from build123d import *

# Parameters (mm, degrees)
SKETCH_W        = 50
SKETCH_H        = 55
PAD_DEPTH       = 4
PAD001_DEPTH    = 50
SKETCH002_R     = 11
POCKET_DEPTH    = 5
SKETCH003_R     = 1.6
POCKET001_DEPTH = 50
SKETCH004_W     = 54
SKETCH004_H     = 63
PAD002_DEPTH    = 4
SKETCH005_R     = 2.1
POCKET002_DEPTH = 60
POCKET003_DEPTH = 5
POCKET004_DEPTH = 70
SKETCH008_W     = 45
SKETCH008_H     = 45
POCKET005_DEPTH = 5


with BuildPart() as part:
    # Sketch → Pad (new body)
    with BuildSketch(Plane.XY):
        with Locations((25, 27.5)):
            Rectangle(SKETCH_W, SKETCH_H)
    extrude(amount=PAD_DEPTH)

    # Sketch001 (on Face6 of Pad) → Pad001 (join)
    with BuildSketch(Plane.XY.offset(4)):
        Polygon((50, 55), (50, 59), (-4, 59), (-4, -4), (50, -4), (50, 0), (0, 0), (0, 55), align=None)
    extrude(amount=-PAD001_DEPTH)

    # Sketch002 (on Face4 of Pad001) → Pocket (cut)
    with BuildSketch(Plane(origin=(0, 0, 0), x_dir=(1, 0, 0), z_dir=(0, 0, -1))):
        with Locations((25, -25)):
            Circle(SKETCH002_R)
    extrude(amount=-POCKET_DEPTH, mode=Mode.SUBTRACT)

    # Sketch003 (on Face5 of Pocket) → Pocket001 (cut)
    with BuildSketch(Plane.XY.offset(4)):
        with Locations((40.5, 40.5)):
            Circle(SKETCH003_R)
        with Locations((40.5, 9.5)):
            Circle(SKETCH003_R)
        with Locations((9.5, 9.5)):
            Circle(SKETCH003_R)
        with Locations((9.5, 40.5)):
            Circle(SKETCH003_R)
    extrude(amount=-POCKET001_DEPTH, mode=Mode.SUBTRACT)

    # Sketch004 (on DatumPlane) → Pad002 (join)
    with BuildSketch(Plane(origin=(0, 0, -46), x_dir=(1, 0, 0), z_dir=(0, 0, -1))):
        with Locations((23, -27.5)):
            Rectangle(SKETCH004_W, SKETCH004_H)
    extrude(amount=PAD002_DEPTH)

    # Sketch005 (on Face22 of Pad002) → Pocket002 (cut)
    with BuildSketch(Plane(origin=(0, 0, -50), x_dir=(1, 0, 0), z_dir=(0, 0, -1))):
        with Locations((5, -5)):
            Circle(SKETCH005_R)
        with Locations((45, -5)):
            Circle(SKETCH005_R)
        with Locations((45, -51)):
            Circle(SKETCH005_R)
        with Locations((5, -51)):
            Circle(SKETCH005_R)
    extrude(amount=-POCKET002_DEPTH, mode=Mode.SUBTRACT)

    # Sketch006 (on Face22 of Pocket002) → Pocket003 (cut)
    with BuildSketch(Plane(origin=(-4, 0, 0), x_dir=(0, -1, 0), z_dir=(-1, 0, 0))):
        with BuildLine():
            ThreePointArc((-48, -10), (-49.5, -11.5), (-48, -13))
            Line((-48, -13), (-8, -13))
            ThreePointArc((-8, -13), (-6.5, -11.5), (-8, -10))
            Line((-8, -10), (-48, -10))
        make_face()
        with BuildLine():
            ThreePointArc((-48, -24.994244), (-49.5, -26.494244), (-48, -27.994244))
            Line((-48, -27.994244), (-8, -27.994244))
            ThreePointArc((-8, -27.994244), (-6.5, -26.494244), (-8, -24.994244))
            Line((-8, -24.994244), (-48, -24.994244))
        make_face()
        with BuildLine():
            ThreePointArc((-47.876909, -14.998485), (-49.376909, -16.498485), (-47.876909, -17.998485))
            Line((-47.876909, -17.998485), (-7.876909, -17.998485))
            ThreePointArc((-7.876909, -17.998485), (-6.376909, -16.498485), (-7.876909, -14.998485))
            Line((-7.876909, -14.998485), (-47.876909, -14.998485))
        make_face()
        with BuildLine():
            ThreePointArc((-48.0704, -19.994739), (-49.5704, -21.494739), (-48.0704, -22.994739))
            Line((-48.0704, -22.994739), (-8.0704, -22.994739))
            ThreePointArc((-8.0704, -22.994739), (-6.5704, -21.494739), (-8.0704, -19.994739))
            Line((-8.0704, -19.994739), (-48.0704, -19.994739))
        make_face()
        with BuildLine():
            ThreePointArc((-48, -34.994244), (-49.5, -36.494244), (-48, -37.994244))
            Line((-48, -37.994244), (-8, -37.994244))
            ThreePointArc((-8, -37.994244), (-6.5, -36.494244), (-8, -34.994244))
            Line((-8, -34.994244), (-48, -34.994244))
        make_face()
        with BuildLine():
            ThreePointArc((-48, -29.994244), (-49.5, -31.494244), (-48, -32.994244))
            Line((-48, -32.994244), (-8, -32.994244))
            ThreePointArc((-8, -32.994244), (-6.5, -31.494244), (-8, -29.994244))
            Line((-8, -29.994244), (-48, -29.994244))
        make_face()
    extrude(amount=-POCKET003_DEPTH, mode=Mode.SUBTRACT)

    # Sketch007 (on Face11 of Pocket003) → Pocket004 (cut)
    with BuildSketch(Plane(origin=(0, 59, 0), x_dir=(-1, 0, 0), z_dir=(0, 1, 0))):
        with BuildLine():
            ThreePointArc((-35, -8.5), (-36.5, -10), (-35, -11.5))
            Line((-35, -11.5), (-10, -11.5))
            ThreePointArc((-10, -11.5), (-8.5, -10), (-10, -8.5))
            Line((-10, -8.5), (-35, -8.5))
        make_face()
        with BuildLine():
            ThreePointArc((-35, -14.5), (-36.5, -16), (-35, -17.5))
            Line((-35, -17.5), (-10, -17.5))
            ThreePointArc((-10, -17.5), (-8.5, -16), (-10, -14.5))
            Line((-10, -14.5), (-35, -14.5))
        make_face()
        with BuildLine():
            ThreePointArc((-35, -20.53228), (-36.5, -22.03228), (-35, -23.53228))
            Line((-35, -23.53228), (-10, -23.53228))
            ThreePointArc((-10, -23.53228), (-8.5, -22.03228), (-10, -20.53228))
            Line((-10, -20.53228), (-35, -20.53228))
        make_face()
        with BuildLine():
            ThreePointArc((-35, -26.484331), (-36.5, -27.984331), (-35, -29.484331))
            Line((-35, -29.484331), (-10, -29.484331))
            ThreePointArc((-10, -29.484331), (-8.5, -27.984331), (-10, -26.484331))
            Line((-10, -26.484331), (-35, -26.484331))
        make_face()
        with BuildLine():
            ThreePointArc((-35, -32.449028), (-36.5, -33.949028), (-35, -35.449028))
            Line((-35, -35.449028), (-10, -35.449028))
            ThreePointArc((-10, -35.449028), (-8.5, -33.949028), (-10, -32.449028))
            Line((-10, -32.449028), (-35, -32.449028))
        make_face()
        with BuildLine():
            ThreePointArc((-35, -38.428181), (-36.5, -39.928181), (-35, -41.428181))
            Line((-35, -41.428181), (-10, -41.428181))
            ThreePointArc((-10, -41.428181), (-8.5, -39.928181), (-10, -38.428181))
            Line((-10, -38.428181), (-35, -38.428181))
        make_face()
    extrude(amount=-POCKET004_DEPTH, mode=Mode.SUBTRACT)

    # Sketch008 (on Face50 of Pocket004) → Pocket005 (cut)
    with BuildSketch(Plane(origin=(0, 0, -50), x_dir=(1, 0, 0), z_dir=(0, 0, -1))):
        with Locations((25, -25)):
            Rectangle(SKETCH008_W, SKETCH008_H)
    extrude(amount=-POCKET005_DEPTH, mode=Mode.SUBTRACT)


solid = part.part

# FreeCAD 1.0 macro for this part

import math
import FreeCAD as App
import Part
import Sketcher
Q = App.Units.Quantity


def add_polygon(sketch, points):
    """Adds a closed chain of lines whose ends are joined by coincident constraints."""
    first, n = sketch.GeometryCount, len(points)
    for a, b in zip(points, points[1:] + points[:1]):
        sketch.addGeometry(Part.LineSegment(App.Vector(*a, 0), App.Vector(*b, 0)), False)
    for i in range(n):
        sketch.addConstraint(Sketcher.Constraint("Coincident", first + i, 2, first + (i + 1) % n, 1))

doc = App.newDocument("Part")
body = doc.addObject("PartDesign::Body", "Body")

# Sketch on XY plane
sketch1 = body.newObject("Sketcher::SketchObject", "Sketch")
sketch1.AttachmentSupport = (doc.getObject("XY_Plane"), [""])
sketch1.MapMode = "FlatFace"
add_polygon(sketch1, [(0, 55), (0, 0), (50, 0), (50, 55)])  # lines 0-3
sketch1.addConstraint([
    Sketcher.Constraint("Vertical", 0),
    Sketcher.Constraint("Horizontal", 1),
    Sketcher.Constraint("Vertical", 2),
    Sketcher.Constraint("Horizontal", 3),
    Sketcher.Constraint("Coincident", 0, 2, -1, 1),
    Sketcher.Constraint("DistanceX", 1, 1, 1, 2, Q("50 mm")),
    Sketcher.Constraint("DistanceY", 0, 2, 0, 1, Q("55 mm")),
])
pad1 = body.newObject("PartDesign::Pad", "Pad")
pad1.Profile = sketch1
pad1.Length = 4

# Sketch on XY plane
sketch2 = body.newObject("Sketcher::SketchObject", "Sketch001")
sketch2.AttachmentSupport = (doc.getObject("XY_Plane"), [""])
sketch2.MapMode = "FlatFace"
sketch2.AttachmentOffset = App.Placement(App.Vector(0, 0, 4), App.Rotation())
add_polygon(sketch2, [(50, 55), (50, 59), (-4, 59), (-4, -4), (50, -4), (50, 0), (0, 0), (0, 55)])  # lines 0-7
sketch2.addConstraint([
    Sketcher.Constraint("Vertical", 0),
    Sketcher.Constraint("Horizontal", 1),
    Sketcher.Constraint("Vertical", 2),
    Sketcher.Constraint("Horizontal", 3),
    Sketcher.Constraint("Vertical", 4),
    Sketcher.Constraint("Horizontal", 5),
    Sketcher.Constraint("Vertical", 6),
    Sketcher.Constraint("Horizontal", 7),
    Sketcher.Constraint("Coincident", 5, 2, -1, 1),
    Sketcher.Constraint("Vertical", 0, 2, 3, 2),
    Sketcher.Constraint("Equal", 0, 4),
    Sketcher.Constraint("DistanceX", 1, 2, 1, 1, Q("54 mm")),
    Sketcher.Constraint("DistanceX", 5, 2, 5, 1, Q("50 mm")),
    Sketcher.Constraint("DistanceY", 0, 1, 0, 2, Q("4 mm")),
    Sketcher.Constraint("DistanceY", 2, 2, 2, 1, Q("63 mm")),
])
pad2 = body.newObject("PartDesign::Pad", "Pad001")
pad2.Profile = sketch2
pad2.Length = 50
pad2.Reversed = True

# Sketch on XY plane
sketch3 = body.newObject("Sketcher::SketchObject", "Sketch002")
sketch3.AttachmentSupport = (doc.getObject("XY_Plane"), [""])
sketch3.MapMode = "FlatFace"
sketch3.addGeometry(Part.Circle(App.Vector(25, 25, 0), App.Vector(0, 0, 1), 11), False)
sketch3.addConstraint([
    Sketcher.Constraint("Diameter", 0, Q("22 mm")),
    Sketcher.Constraint("DistanceX", -1, 1, 0, 3, Q("25 mm")),
    Sketcher.Constraint("DistanceY", -1, 1, 0, 3, Q("25 mm")),
])
pocket1 = body.newObject("PartDesign::Pocket", "Pocket")
pocket1.Profile = sketch3
pocket1.Length = 5
pocket1.Reversed = True

# Sketch on XY plane
sketch4 = body.newObject("Sketcher::SketchObject", "Sketch003")
sketch4.AttachmentSupport = (doc.getObject("XY_Plane"), [""])
sketch4.MapMode = "FlatFace"
sketch4.AttachmentOffset = App.Placement(App.Vector(0, 0, 4), App.Rotation())
sketch4.addGeometry([
    Part.Circle(App.Vector(40.5, 40.5, 0), App.Vector(0, 0, 1), 1.6),
    Part.Circle(App.Vector(40.5, 9.5, 0), App.Vector(0, 0, 1), 1.6),
    Part.Circle(App.Vector(9.5, 9.5, 0), App.Vector(0, 0, 1), 1.6),
    Part.Circle(App.Vector(9.5, 40.5, 0), App.Vector(0, 0, 1), 1.6),
], False)
sketch4.addConstraint([
    Sketcher.Constraint("Equal", 0, 1),
    Sketcher.Constraint("Equal", 1, 2),
    Sketcher.Constraint("Equal", 2, 3),
    Sketcher.Constraint("Horizontal", 1, 3, 2, 3),
    Sketcher.Constraint("Horizontal", 0, 3, 3, 3),
    Sketcher.Constraint("Vertical", 0, 3, 1, 3),
    Sketcher.Constraint("Vertical", 2, 3, 3, 3),
    Sketcher.Constraint("Diameter", 0, Q("3.2 mm")),
    Sketcher.Constraint("DistanceY", 1, 3, 0, 3, Q("31 mm")),
    Sketcher.Constraint("DistanceX", 2, 3, 1, 3, Q("31 mm")),
    Sketcher.Constraint("DistanceX", -1, 1, 0, 3, Q("40.5 mm")),
    Sketcher.Constraint("DistanceY", -1, 1, 0, 3, Q("40.5 mm")),
])
pocket2 = body.newObject("PartDesign::Pocket", "Pocket001")
pocket2.Profile = sketch4
pocket2.Length = 50

# Sketch on XY plane
sketch5 = body.newObject("Sketcher::SketchObject", "Sketch004")
sketch5.AttachmentSupport = (doc.getObject("XY_Plane"), [""])
sketch5.MapMode = "FlatFace"
sketch5.AttachmentOffset = App.Placement(App.Vector(0, 0, -46), App.Rotation())
add_polygon(sketch5, [(-4, -4), (-4, 59), (50, 59), (50, -4)])  # lines 0-3
sketch5.addConstraint([
    Sketcher.Constraint("Vertical", 0),
    Sketcher.Constraint("Horizontal", 1),
    Sketcher.Constraint("Vertical", 2),
    Sketcher.Constraint("Horizontal", 3),
    Sketcher.Constraint("DistanceX", 1, 1, 1, 2, Q("54 mm")),
    Sketcher.Constraint("DistanceY", 0, 1, 0, 2, Q("63 mm")),
    Sketcher.Constraint("DistanceX", 0, 2, -1, 1, Q("4 mm")),
    Sketcher.Constraint("DistanceY", -1, 1, 0, 2, Q("59 mm")),
])
pad3 = body.newObject("PartDesign::Pad", "Pad002")
pad3.Profile = sketch5
pad3.Length = 4
pad3.Reversed = True

# Sketch on XY plane
sketch6 = body.newObject("Sketcher::SketchObject", "Sketch005")
sketch6.AttachmentSupport = (doc.getObject("XY_Plane"), [""])
sketch6.MapMode = "FlatFace"
sketch6.AttachmentOffset = App.Placement(App.Vector(0, 0, -50), App.Rotation())
sketch6.addGeometry([
    Part.Circle(App.Vector(5, 5, 0), App.Vector(0, 0, 1), 2.1),
    Part.Circle(App.Vector(45, 5, 0), App.Vector(0, 0, 1), 2.1),
    Part.Circle(App.Vector(45, 51, 0), App.Vector(0, 0, 1), 2.1),
    Part.Circle(App.Vector(5, 51, 0), App.Vector(0, 0, 1), 2.1),
], False)
sketch6.addConstraint([
    Sketcher.Constraint("Equal", 0, 1),
    Sketcher.Constraint("Equal", 1, 2),
    Sketcher.Constraint("Equal", 2, 3),
    Sketcher.Constraint("Horizontal", 0, 3, 1, 3),
    Sketcher.Constraint("Horizontal", 2, 3, 3, 3),
    Sketcher.Constraint("Vertical", 1, 3, 2, 3),
    Sketcher.Constraint("Vertical", 0, 3, 3, 3),
    Sketcher.Constraint("Diameter", 0, Q("4.2 mm")),
    Sketcher.Constraint("DistanceX", -1, 1, 0, 3, Q("5 mm")),
    Sketcher.Constraint("DistanceY", -1, 1, 0, 3, Q("5 mm")),
    Sketcher.Constraint("DistanceX", -1, 1, 1, 3, Q("45 mm")),
    Sketcher.Constraint("DistanceY", -1, 1, 2, 3, Q("51 mm")),
])
pocket3 = body.newObject("PartDesign::Pocket", "Pocket002")
pocket3.Profile = sketch6
pocket3.Length = 60
pocket3.Reversed = True

# Sketch on YZ plane
sketch7 = body.newObject("Sketcher::SketchObject", "Sketch006")
sketch7.AttachmentSupport = (doc.getObject("YZ_Plane"), [""])
sketch7.MapMode = "FlatFace"
sketch7.AttachmentOffset = App.Placement(App.Vector(0, 0, -4), App.Rotation())
sketch7.addGeometry([
    Part.ArcOfCircle(Part.Circle(App.Vector(48, -11.5, 0), App.Vector(0, 0, 1), 1.5), math.radians(-90), math.radians(90)),  # 0
    Part.LineSegment(App.Vector(48, -13, 0), App.Vector(8, -13, 0)),  # 1
    Part.ArcOfCircle(Part.Circle(App.Vector(8, -11.5, 0), App.Vector(0, 0, 1), 1.5), math.radians(90), math.radians(270)),  # 2
    Part.LineSegment(App.Vector(8, -10, 0), App.Vector(48, -10, 0)),  # 3
    Part.ArcOfCircle(Part.Circle(App.Vector(48, -26.5, 0), App.Vector(0, 0, 1), 1.5), math.radians(-90), math.radians(90)),  # 4
    Part.LineSegment(App.Vector(48, -28, 0), App.Vector(8, -28, 0)),  # 5
    Part.ArcOfCircle(Part.Circle(App.Vector(8, -26.5, 0), App.Vector(0, 0, 1), 1.5), math.radians(90), math.radians(270)),  # 6
    Part.LineSegment(App.Vector(8, -25, 0), App.Vector(48, -25, 0)),  # 7
    Part.ArcOfCircle(Part.Circle(App.Vector(47.9, -16.5, 0), App.Vector(0, 0, 1), 1.5), math.radians(-90), math.radians(90)),  # 8
    Part.LineSegment(App.Vector(47.9, -18, 0), App.Vector(7.9, -18, 0)),  # 9
    Part.ArcOfCircle(Part.Circle(App.Vector(7.9, -16.5, 0), App.Vector(0, 0, 1), 1.5), math.radians(90), math.radians(270)),  # 10
    Part.LineSegment(App.Vector(7.9, -15, 0), App.Vector(47.9, -15, 0)),  # 11
    Part.ArcOfCircle(Part.Circle(App.Vector(48.1, -21.5, 0), App.Vector(0, 0, 1), 1.5), math.radians(-90), math.radians(90)),  # 12
    Part.LineSegment(App.Vector(48.1, -23, 0), App.Vector(8.1, -23, 0)),  # 13
    Part.ArcOfCircle(Part.Circle(App.Vector(8.1, -21.5, 0), App.Vector(0, 0, 1), 1.5), math.radians(90), math.radians(270)),  # 14
    Part.LineSegment(App.Vector(8.1, -20, 0), App.Vector(48.1, -20, 0)),  # 15
    Part.ArcOfCircle(Part.Circle(App.Vector(48, -36.5, 0), App.Vector(0, 0, 1), 1.5), math.radians(-90), math.radians(90)),  # 16
    Part.LineSegment(App.Vector(48, -38, 0), App.Vector(8, -38, 0)),  # 17
    Part.ArcOfCircle(Part.Circle(App.Vector(8, -36.5, 0), App.Vector(0, 0, 1), 1.5), math.radians(90), math.radians(270)),  # 18
    Part.LineSegment(App.Vector(8, -35, 0), App.Vector(48, -35, 0)),  # 19
    Part.ArcOfCircle(Part.Circle(App.Vector(48, -31.5, 0), App.Vector(0, 0, 1), 1.5), math.radians(-90), math.radians(90)),  # 20
    Part.LineSegment(App.Vector(48, -33, 0), App.Vector(8, -33, 0)),  # 21
    Part.ArcOfCircle(Part.Circle(App.Vector(8, -31.5, 0), App.Vector(0, 0, 1), 1.5), math.radians(90), math.radians(270)),  # 22
    Part.LineSegment(App.Vector(8, -30, 0), App.Vector(48, -30, 0)),  # 23
], False)
sketch7.addConstraint([
    Sketcher.Constraint("Tangent", 0, 1, 1, 1),
    Sketcher.Constraint("Tangent", 1, 2, 2, 2),
    Sketcher.Constraint("Tangent", 2, 1, 3, 1),
    Sketcher.Constraint("Tangent", 3, 2, 0, 2),
    Sketcher.Constraint("Tangent", 4, 1, 5, 1),
    Sketcher.Constraint("Tangent", 5, 2, 6, 2),
    Sketcher.Constraint("Tangent", 6, 1, 7, 1),
    Sketcher.Constraint("Tangent", 7, 2, 4, 2),
    Sketcher.Constraint("Tangent", 8, 1, 9, 1),
    Sketcher.Constraint("Tangent", 9, 2, 10, 2),
    Sketcher.Constraint("Tangent", 10, 1, 11, 1),
    Sketcher.Constraint("Tangent", 11, 2, 8, 2),
    Sketcher.Constraint("Tangent", 12, 1, 13, 1),
    Sketcher.Constraint("Tangent", 13, 2, 14, 2),
    Sketcher.Constraint("Tangent", 14, 1, 15, 1),
    Sketcher.Constraint("Tangent", 15, 2, 12, 2),
    Sketcher.Constraint("Tangent", 16, 1, 17, 1),
    Sketcher.Constraint("Tangent", 17, 2, 18, 2),
    Sketcher.Constraint("Tangent", 18, 1, 19, 1),
    Sketcher.Constraint("Tangent", 19, 2, 16, 2),
    Sketcher.Constraint("Tangent", 20, 1, 21, 1),
    Sketcher.Constraint("Tangent", 21, 2, 22, 2),
    Sketcher.Constraint("Tangent", 22, 1, 23, 1),
    Sketcher.Constraint("Tangent", 23, 2, 20, 2),
    Sketcher.Constraint("Horizontal", 1),
    Sketcher.Constraint("Horizontal", 3),
    Sketcher.Constraint("Horizontal", 5),
    Sketcher.Constraint("Horizontal", 7),
    Sketcher.Constraint("Horizontal", 9),
    Sketcher.Constraint("Horizontal", 11),
    Sketcher.Constraint("Horizontal", 13),
    Sketcher.Constraint("Horizontal", 15),
    Sketcher.Constraint("Horizontal", 17),
    Sketcher.Constraint("Horizontal", 19),
    Sketcher.Constraint("Horizontal", 21),
    Sketcher.Constraint("Horizontal", 23),
    Sketcher.Constraint("Equal", 2, 4),
    Sketcher.Constraint("Equal", 6, 8),
    Sketcher.Constraint("Equal", 10, 12),
    Sketcher.Constraint("Equal", 14, 16),
    Sketcher.Constraint("Equal", 18, 20),
    Sketcher.Constraint("Vertical", 0, 3, 4, 3),
    Sketcher.Constraint("Vertical", 2, 3, 6, 3),
    Sketcher.Constraint("Vertical", 4, 3, 16, 3),
    Sketcher.Constraint("Vertical", 6, 3, 18, 3),
    Sketcher.Constraint("Vertical", 16, 3, 20, 3),
    Sketcher.Constraint("Vertical", 18, 3, 22, 3),
    Sketcher.Constraint("Equal", 7, 9),
    Sketcher.Constraint("Equal", 11, 13),
    Sketcher.Constraint("Radius", 0, Q("1.5 mm")),
    Sketcher.Constraint("DistanceX", 1, 2, 1, 1, Q("40 mm")),
    Sketcher.Constraint("DistanceX", -1, 1, 0, 3, Q("48 mm")),
    Sketcher.Constraint("DistanceY", 0, 1, -1, 1, Q("13 mm")),
    Sketcher.Constraint("DistanceY", 16, 3, 4, 3, Q("10 mm")),
    Sketcher.Constraint("DistanceY", 20, 3, 4, 3, Q("5 mm")),
    Sketcher.Constraint("DistanceX", -1, 1, 12, 3, Q("48.0704 mm")),
    Sketcher.Constraint("DistanceX", -1, 1, 8, 3, Q("47.876909 mm")),
    Sketcher.Constraint("DistanceY", 12, 3, -1, 1, Q("21.494739 mm")),
    Sketcher.Constraint("DistanceY", 4, 3, 8, 3, Q("9.995759 mm")),
    Sketcher.Constraint("DistanceY", 4, 3, -1, 1, Q("26.494244 mm")),
])
pocket4 = body.newObject("PartDesign::Pocket", "Pocket003")
pocket4.Profile = sketch7
pocket4.Length = 5
pocket4.Reversed = True

# Sketch on XZ plane
sketch8 = body.newObject("Sketcher::SketchObject", "Sketch007")
sketch8.AttachmentSupport = (doc.getObject("XZ_Plane"), [""])
sketch8.MapMode = "FlatFace"
sketch8.AttachmentOffset = App.Placement(App.Vector(0, 0, -59), App.Rotation())
sketch8.addGeometry([
    Part.ArcOfCircle(Part.Circle(App.Vector(35, -10, 0), App.Vector(0, 0, 1), 1.5), math.radians(-90), math.radians(90)),  # 0
    Part.LineSegment(App.Vector(35, -11.5, 0), App.Vector(10, -11.5, 0)),  # 1
    Part.ArcOfCircle(Part.Circle(App.Vector(10, -10, 0), App.Vector(0, 0, 1), 1.5), math.radians(90), math.radians(270)),  # 2
    Part.LineSegment(App.Vector(10, -8.5, 0), App.Vector(35, -8.5, 0)),  # 3
    Part.ArcOfCircle(Part.Circle(App.Vector(35, -16, 0), App.Vector(0, 0, 1), 1.5), math.radians(-90), math.radians(90)),  # 4
    Part.LineSegment(App.Vector(35, -17.5, 0), App.Vector(10, -17.5, 0)),  # 5
    Part.ArcOfCircle(Part.Circle(App.Vector(10, -16, 0), App.Vector(0, 0, 1), 1.5), math.radians(90), math.radians(270)),  # 6
    Part.LineSegment(App.Vector(10, -14.5, 0), App.Vector(35, -14.5, 0)),  # 7
    Part.ArcOfCircle(Part.Circle(App.Vector(35, -22, 0), App.Vector(0, 0, 1), 1.5), math.radians(-90), math.radians(90)),  # 8
    Part.LineSegment(App.Vector(35, -23.5, 0), App.Vector(10, -23.5, 0)),  # 9
    Part.ArcOfCircle(Part.Circle(App.Vector(10, -22, 0), App.Vector(0, 0, 1), 1.5), math.radians(90), math.radians(270)),  # 10
    Part.LineSegment(App.Vector(10, -20.5, 0), App.Vector(35, -20.5, 0)),  # 11
    Part.ArcOfCircle(Part.Circle(App.Vector(35, -28, 0), App.Vector(0, 0, 1), 1.5), math.radians(-90), math.radians(90)),  # 12
    Part.LineSegment(App.Vector(35, -29.5, 0), App.Vector(10, -29.5, 0)),  # 13
    Part.ArcOfCircle(Part.Circle(App.Vector(10, -28, 0), App.Vector(0, 0, 1), 1.5), math.radians(90), math.radians(270)),  # 14
    Part.LineSegment(App.Vector(10, -26.5, 0), App.Vector(35, -26.5, 0)),  # 15
    Part.ArcOfCircle(Part.Circle(App.Vector(35, -33.9, 0), App.Vector(0, 0, 1), 1.5), math.radians(-90), math.radians(90)),  # 16
    Part.LineSegment(App.Vector(35, -35.4, 0), App.Vector(10, -35.4, 0)),  # 17
    Part.ArcOfCircle(Part.Circle(App.Vector(10, -33.9, 0), App.Vector(0, 0, 1), 1.5), math.radians(90), math.radians(270)),  # 18
    Part.LineSegment(App.Vector(10, -32.4, 0), App.Vector(35, -32.4, 0)),  # 19
    Part.ArcOfCircle(Part.Circle(App.Vector(35, -39.9, 0), App.Vector(0, 0, 1), 1.5), math.radians(-90), math.radians(90)),  # 20
    Part.LineSegment(App.Vector(35, -41.4, 0), App.Vector(10, -41.4, 0)),  # 21
    Part.ArcOfCircle(Part.Circle(App.Vector(10, -39.9, 0), App.Vector(0, 0, 1), 1.5), math.radians(90), math.radians(270)),  # 22
    Part.LineSegment(App.Vector(10, -38.4, 0), App.Vector(35, -38.4, 0)),  # 23
], False)
sketch8.addConstraint([
    Sketcher.Constraint("Tangent", 0, 1, 1, 1),
    Sketcher.Constraint("Tangent", 1, 2, 2, 2),
    Sketcher.Constraint("Tangent", 2, 1, 3, 1),
    Sketcher.Constraint("Tangent", 3, 2, 0, 2),
    Sketcher.Constraint("Tangent", 4, 1, 5, 1),
    Sketcher.Constraint("Tangent", 5, 2, 6, 2),
    Sketcher.Constraint("Tangent", 6, 1, 7, 1),
    Sketcher.Constraint("Tangent", 7, 2, 4, 2),
    Sketcher.Constraint("Tangent", 8, 1, 9, 1),
    Sketcher.Constraint("Tangent", 9, 2, 10, 2),
    Sketcher.Constraint("Tangent", 10, 1, 11, 1),
    Sketcher.Constraint("Tangent", 11, 2, 8, 2),
    Sketcher.Constraint("Tangent", 12, 1, 13, 1),
    Sketcher.Constraint("Tangent", 13, 2, 14, 2),
    Sketcher.Constraint("Tangent", 14, 1, 15, 1),
    Sketcher.Constraint("Tangent", 15, 2, 12, 2),
    Sketcher.Constraint("Tangent", 16, 1, 17, 1),
    Sketcher.Constraint("Tangent", 17, 2, 18, 2),
    Sketcher.Constraint("Tangent", 18, 1, 19, 1),
    Sketcher.Constraint("Tangent", 19, 2, 16, 2),
    Sketcher.Constraint("Tangent", 20, 1, 21, 1),
    Sketcher.Constraint("Tangent", 21, 2, 22, 2),
    Sketcher.Constraint("Tangent", 22, 1, 23, 1),
    Sketcher.Constraint("Tangent", 23, 2, 20, 2),
    Sketcher.Constraint("Horizontal", 1),
    Sketcher.Constraint("Horizontal", 3),
    Sketcher.Constraint("Horizontal", 5),
    Sketcher.Constraint("Horizontal", 7),
    Sketcher.Constraint("Horizontal", 9),
    Sketcher.Constraint("Horizontal", 11),
    Sketcher.Constraint("Horizontal", 13),
    Sketcher.Constraint("Horizontal", 15),
    Sketcher.Constraint("Horizontal", 17),
    Sketcher.Constraint("Horizontal", 19),
    Sketcher.Constraint("Horizontal", 21),
    Sketcher.Constraint("Horizontal", 23),
    Sketcher.Constraint("Equal", 2, 4),
    Sketcher.Constraint("Equal", 6, 8),
    Sketcher.Constraint("Equal", 10, 12),
    Sketcher.Constraint("Equal", 14, 16),
    Sketcher.Constraint("Equal", 18, 20),
    Sketcher.Constraint("Vertical", 0, 3, 4, 3),
    Sketcher.Constraint("Vertical", 2, 3, 6, 3),
    Sketcher.Constraint("Vertical", 4, 3, 8, 3),
    Sketcher.Constraint("Vertical", 6, 3, 10, 3),
    Sketcher.Constraint("Vertical", 8, 3, 12, 3),
    Sketcher.Constraint("Vertical", 10, 3, 14, 3),
    Sketcher.Constraint("Vertical", 12, 3, 16, 3),
    Sketcher.Constraint("Vertical", 14, 3, 18, 3),
    Sketcher.Constraint("Vertical", 16, 3, 20, 3),
    Sketcher.Constraint("Vertical", 18, 3, 22, 3),
    Sketcher.Constraint("Radius", 0, Q("1.5 mm")),
    Sketcher.Constraint("DistanceX", 1, 2, 1, 1, Q("25 mm")),
    Sketcher.Constraint("DistanceX", -1, 1, 0, 3, Q("35 mm")),
    Sketcher.Constraint("DistanceY", 0, 3, -1, 1, Q("10 mm")),
    Sketcher.Constraint("DistanceY", 4, 3, -1, 1, Q("16 mm")),
    Sketcher.Constraint("DistanceY", 20, 3, 8, 3, Q("17.895901 mm")),
    Sketcher.Constraint("DistanceY", 8, 3, -1, 1, Q("22.03228 mm")),
    Sketcher.Constraint("DistanceY", 12, 3, -1, 1, Q("27.984331 mm")),
    Sketcher.Constraint("DistanceY", 16, 3, -1, 1, Q("33.949028 mm")),
])
pocket5 = body.newObject("PartDesign::Pocket", "Pocket004")
pocket5.Profile = sketch8
pocket5.Length = 70
pocket5.Reversed = True

# Sketch on XY plane
sketch9 = body.newObject("Sketcher::SketchObject", "Sketch008")
sketch9.AttachmentSupport = (doc.getObject("XY_Plane"), [""])
sketch9.MapMode = "FlatFace"
sketch9.AttachmentOffset = App.Placement(App.Vector(0, 0, -50), App.Rotation())
add_polygon(sketch9, [(2, 2), (2, 48), (48, 48), (48, 2)])  # lines 0-3
sketch9.addConstraint([
    Sketcher.Constraint("Vertical", 0),
    Sketcher.Constraint("Horizontal", 1),
    Sketcher.Constraint("Vertical", 2),
    Sketcher.Constraint("Horizontal", 3),
    Sketcher.Constraint("Equal", 3, 0),
    Sketcher.Constraint("DistanceX", 1, 1, 1, 2, Q("45 mm")),
    Sketcher.Constraint("DistanceX", -1, 1, 0, 2, Q("2.5 mm")),
    Sketcher.Constraint("DistanceY", -1, 1, 0, 2, Q("47.5 mm")),
])
pocket6 = body.newObject("PartDesign::Pocket", "Pocket005")
pocket6.Profile = sketch9
pocket6.Length = 5
pocket6.Reversed = True

doc.recompute()
